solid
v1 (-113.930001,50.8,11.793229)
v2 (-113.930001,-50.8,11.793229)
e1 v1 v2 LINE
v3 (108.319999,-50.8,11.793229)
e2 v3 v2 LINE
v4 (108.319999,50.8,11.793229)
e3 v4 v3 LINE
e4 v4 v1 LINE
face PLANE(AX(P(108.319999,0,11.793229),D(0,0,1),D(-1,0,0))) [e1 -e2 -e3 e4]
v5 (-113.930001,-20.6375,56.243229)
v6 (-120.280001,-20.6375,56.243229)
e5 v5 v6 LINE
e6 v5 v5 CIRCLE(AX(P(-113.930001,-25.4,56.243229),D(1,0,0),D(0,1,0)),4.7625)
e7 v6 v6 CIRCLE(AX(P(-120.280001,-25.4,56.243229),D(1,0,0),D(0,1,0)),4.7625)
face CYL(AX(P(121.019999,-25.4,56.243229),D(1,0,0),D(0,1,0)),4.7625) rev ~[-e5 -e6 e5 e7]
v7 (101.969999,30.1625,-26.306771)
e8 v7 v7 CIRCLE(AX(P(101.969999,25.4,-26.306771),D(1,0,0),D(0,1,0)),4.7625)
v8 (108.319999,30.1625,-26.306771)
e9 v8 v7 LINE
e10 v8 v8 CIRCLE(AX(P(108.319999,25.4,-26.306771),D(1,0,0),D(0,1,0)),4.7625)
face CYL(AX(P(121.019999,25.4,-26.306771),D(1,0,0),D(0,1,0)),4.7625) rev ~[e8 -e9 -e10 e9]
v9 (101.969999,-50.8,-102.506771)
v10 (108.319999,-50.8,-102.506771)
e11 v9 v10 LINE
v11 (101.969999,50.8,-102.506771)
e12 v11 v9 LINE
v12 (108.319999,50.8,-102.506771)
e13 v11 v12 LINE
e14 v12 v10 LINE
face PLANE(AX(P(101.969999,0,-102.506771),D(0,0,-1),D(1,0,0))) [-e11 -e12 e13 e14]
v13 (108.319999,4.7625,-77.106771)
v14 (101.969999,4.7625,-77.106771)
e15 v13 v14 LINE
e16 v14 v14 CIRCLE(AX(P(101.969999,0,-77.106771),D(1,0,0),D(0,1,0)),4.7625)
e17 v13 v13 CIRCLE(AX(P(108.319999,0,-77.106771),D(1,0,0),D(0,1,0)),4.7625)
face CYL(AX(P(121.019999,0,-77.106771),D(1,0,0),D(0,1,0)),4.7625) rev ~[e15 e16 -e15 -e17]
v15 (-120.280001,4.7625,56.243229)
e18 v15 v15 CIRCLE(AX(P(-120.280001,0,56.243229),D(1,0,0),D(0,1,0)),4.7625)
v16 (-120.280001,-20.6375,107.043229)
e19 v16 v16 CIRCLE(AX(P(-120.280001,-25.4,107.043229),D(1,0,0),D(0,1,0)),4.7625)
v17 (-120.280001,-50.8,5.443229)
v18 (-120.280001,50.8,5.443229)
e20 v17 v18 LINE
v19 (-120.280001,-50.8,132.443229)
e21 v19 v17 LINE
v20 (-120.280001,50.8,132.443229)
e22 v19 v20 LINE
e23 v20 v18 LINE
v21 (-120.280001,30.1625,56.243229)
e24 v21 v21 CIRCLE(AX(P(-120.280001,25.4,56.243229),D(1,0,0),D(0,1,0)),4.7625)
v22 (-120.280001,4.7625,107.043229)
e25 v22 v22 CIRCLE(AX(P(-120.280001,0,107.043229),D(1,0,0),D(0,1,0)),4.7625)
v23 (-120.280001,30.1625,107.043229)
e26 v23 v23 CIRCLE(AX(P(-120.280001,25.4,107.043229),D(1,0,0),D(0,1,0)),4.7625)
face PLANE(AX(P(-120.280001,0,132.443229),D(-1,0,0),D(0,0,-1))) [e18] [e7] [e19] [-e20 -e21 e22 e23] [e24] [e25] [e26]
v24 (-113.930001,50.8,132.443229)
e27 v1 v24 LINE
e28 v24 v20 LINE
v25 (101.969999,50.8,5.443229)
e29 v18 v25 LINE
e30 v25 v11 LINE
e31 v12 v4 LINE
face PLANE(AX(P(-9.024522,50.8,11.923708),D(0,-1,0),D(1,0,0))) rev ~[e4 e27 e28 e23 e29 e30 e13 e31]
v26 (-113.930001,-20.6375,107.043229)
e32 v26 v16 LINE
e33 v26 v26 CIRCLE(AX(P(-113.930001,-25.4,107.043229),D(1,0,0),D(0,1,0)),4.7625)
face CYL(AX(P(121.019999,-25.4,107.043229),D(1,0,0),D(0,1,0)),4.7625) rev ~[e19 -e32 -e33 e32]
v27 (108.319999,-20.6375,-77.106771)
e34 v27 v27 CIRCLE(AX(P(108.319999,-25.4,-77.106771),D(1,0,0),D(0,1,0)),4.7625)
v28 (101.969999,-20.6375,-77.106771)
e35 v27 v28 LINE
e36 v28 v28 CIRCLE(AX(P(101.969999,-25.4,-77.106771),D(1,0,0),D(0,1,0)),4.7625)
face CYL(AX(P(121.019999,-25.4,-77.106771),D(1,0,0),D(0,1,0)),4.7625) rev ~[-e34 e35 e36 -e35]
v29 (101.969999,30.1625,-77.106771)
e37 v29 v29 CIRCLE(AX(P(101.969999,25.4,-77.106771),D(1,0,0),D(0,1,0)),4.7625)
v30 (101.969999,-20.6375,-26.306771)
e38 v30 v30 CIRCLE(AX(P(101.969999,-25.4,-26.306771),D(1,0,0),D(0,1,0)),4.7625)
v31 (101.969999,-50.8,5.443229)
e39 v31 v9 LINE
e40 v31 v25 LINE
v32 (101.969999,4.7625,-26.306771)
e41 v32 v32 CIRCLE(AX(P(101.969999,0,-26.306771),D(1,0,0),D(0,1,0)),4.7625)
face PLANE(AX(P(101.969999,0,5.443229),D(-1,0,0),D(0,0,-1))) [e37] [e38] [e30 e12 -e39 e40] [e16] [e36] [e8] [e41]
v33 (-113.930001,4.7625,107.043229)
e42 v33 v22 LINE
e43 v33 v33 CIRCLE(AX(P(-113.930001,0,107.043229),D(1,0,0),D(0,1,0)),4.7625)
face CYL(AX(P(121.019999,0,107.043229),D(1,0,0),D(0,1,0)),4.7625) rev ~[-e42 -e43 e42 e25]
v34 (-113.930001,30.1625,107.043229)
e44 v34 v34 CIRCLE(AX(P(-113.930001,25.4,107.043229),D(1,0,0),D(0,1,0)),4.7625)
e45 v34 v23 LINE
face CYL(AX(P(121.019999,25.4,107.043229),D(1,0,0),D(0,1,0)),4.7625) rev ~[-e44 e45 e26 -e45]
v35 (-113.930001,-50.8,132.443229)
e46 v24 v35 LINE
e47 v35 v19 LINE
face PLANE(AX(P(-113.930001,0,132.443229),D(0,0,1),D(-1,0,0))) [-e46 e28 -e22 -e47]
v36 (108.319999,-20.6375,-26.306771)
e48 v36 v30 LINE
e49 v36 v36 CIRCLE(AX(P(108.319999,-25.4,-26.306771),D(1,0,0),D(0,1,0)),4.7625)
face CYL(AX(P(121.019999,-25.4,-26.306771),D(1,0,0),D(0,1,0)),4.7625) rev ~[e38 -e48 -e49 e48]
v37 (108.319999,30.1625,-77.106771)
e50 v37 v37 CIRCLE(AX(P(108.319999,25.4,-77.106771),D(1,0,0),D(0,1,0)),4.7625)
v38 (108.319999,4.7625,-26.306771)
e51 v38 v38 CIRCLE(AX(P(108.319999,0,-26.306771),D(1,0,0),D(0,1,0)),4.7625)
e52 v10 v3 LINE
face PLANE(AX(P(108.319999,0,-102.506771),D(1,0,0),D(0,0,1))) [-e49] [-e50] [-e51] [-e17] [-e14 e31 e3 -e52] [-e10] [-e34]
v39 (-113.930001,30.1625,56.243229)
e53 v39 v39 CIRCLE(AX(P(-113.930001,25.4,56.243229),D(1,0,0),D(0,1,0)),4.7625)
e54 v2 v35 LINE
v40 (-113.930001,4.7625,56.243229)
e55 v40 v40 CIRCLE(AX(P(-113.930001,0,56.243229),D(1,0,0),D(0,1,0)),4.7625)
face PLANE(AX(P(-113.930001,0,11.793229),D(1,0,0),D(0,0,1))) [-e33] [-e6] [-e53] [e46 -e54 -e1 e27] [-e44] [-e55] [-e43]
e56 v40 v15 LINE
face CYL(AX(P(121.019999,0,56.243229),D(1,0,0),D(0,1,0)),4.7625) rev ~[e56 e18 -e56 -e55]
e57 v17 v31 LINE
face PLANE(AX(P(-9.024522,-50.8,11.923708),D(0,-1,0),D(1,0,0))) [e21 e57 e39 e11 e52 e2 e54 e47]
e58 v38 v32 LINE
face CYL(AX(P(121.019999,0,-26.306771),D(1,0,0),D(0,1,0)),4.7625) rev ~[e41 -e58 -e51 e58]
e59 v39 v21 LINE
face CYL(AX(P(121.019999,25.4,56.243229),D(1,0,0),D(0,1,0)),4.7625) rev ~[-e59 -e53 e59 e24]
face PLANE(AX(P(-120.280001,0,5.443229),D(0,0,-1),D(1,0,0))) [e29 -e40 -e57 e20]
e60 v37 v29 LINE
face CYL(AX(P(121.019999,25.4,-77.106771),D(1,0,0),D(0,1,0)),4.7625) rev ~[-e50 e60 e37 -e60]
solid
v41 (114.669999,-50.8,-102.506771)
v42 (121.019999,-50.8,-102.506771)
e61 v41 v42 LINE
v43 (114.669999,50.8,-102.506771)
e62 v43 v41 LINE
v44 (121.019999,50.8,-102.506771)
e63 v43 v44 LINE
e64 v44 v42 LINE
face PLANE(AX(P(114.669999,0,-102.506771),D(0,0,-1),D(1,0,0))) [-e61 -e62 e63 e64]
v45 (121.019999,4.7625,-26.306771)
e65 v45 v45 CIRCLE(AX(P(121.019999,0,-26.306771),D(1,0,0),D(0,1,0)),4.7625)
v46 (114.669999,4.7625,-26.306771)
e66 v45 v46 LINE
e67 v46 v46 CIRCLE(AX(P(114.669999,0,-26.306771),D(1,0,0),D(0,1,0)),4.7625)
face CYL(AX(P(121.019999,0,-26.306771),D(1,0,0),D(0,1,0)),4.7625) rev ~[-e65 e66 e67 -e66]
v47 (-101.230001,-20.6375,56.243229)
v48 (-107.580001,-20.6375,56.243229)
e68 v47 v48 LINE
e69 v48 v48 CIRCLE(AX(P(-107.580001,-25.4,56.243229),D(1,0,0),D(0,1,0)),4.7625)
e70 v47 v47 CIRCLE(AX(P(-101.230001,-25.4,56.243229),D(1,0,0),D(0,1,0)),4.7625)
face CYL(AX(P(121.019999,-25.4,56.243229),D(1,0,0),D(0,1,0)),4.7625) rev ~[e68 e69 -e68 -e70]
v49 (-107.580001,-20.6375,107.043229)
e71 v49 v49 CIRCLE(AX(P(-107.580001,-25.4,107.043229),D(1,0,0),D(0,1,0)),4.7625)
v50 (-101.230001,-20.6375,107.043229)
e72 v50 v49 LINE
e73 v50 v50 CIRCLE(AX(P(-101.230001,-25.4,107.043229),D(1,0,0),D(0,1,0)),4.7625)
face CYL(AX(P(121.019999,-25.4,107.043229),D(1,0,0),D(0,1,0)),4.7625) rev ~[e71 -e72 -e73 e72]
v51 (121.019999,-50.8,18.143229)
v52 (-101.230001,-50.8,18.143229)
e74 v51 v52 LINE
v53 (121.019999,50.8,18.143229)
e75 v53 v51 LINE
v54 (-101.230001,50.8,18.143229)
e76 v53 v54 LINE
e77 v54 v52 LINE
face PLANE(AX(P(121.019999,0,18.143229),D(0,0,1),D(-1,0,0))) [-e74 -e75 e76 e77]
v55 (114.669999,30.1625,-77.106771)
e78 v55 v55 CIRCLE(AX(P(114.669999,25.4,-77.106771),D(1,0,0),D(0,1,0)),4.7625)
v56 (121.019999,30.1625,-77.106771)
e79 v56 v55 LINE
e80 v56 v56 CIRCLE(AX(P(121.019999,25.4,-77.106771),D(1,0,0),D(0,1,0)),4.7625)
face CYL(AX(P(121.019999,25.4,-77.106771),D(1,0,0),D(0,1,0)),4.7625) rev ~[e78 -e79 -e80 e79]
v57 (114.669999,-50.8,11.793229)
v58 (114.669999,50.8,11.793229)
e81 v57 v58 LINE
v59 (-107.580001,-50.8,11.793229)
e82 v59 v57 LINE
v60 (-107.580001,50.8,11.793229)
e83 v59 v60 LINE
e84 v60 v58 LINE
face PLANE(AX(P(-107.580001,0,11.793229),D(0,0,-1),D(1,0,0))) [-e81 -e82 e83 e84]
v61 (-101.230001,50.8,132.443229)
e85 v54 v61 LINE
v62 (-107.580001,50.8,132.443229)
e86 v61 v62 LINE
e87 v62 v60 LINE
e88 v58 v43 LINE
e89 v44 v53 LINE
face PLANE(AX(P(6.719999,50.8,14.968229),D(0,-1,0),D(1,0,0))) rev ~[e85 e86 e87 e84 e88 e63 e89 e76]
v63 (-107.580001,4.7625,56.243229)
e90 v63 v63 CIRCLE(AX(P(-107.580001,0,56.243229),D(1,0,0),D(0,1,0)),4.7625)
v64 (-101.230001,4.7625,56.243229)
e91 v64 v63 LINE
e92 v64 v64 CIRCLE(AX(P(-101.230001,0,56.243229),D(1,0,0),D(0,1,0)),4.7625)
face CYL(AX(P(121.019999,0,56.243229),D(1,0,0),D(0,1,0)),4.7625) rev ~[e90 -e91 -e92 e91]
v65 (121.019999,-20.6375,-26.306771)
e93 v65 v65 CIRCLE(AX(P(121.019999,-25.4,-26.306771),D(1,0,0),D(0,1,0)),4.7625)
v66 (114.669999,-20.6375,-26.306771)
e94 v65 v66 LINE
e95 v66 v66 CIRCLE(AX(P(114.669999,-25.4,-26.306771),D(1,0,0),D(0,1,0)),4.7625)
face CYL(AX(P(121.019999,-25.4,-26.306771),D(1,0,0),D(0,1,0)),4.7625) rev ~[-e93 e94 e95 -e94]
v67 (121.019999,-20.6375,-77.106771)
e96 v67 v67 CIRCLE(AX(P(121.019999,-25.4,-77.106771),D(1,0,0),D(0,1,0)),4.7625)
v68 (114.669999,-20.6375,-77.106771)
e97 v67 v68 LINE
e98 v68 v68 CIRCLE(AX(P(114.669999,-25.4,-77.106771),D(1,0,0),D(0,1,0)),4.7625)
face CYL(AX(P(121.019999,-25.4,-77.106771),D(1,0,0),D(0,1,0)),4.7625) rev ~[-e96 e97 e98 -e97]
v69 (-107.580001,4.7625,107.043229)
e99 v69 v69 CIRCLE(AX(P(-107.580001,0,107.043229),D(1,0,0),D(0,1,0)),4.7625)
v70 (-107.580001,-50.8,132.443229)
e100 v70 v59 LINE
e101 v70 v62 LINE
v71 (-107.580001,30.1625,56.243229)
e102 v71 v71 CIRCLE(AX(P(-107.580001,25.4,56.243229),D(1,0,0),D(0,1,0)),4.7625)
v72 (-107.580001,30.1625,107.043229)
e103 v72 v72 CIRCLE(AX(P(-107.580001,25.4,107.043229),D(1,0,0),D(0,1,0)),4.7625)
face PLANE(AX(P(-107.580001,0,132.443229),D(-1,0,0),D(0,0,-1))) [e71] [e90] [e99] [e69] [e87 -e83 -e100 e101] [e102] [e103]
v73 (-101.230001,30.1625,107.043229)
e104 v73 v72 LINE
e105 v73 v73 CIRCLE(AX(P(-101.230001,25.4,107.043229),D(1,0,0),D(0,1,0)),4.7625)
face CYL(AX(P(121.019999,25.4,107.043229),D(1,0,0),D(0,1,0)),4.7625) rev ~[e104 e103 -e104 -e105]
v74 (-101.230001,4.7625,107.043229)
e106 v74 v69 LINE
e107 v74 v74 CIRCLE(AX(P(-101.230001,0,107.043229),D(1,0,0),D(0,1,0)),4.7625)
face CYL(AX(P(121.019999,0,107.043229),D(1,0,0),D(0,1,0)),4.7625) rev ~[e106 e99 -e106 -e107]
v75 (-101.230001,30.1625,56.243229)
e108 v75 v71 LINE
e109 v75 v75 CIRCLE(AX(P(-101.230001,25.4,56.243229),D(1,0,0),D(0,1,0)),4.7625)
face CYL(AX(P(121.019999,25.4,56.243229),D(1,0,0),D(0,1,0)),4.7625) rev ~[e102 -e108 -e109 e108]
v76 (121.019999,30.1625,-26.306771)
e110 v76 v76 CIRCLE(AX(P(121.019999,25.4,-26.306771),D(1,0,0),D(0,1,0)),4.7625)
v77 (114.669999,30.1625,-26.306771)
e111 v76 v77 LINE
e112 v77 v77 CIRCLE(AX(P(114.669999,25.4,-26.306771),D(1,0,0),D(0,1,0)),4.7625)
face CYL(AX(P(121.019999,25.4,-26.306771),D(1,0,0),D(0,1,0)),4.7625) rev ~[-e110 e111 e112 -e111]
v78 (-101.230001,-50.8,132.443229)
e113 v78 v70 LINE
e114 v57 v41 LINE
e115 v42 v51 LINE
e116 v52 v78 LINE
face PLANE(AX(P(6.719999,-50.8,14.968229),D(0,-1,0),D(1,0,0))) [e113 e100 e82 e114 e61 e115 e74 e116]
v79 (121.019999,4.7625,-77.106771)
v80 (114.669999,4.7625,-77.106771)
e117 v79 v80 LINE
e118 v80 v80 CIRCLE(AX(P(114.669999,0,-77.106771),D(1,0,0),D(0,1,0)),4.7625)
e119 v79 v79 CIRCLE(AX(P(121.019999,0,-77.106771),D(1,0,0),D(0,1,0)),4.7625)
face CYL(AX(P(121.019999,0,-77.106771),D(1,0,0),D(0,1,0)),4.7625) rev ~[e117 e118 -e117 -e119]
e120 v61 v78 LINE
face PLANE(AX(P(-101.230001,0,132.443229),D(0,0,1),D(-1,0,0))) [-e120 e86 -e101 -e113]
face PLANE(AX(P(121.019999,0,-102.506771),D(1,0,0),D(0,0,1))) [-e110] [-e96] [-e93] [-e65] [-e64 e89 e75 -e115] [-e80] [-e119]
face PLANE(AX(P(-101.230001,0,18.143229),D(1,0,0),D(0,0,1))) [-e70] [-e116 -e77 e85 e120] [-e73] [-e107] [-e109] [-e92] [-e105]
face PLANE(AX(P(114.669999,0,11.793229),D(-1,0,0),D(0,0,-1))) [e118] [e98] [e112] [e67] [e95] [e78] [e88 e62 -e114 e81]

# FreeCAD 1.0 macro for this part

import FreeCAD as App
import Part
import Sketcher
from FreeCAD import Vector
Q = App.Units.Quantity


def add_polygon(sketch, points):
    """Adds a closed chain of lines whose ends are joined by coincident constraints."""
    first, n = sketch.GeometryCount, len(points)
    for a, b in zip(points, points[1:] + points[:1]):
        sketch.addGeometry(Part.LineSegment(App.Vector(*a, 0), App.Vector(*b, 0)), False)
    for i in range(n):
        sketch.addConstraint(Sketcher.Constraint("Coincident", first + i, 2, first + (i + 1) % n, 1))

doc = App.newDocument("Part")
body = doc.addObject("PartDesign::Body", "Body")

sketch1 = body.newObject("Sketcher::SketchObject", "Sketch")
sketch1.AttachmentSupport = (doc.getObject("XZ_Plane"), [""])
sketch1.MapMode = "FlatFace"
add_polygon(sketch1, [(102, 5), (102, -103), (108, -103), (108, 12), (-114, 12), (-114, 132), (-120, 132), (-120, 5)])
sketch1.addConstraint([
    Sketcher.Constraint("Vertical", 0),
    Sketcher.Constraint("Horizontal", 1),
    Sketcher.Constraint("Vertical", 2),
    Sketcher.Constraint("Horizontal", 3),
    Sketcher.Constraint("Vertical", 4),
    Sketcher.Constraint("Horizontal", 5),
    Sketcher.Constraint("Vertical", 6),
    Sketcher.Constraint("Horizontal", 7),
    Sketcher.Constraint("Equal", 1, 5),
    Sketcher.Constraint("DistanceY", 6, 2, 6, 1, Q("5 in")),
    Sketcher.Constraint("DistanceY", 2, 1, 2, 2, Q("4.5 in")),
    Sketcher.Constraint("DistanceX", 5, 2, 2, 2, Q("9 in")),
    Sketcher.Constraint("DistanceX", 1, 1, 1, 2, Q("0.25 in")),
    Sketcher.Constraint("DistanceY", 0, 2, 0, 1, Q("4.25 in")),
    Sketcher.Constraint("DistanceX", -1, 1, 0, 2, 101.969999),
    Sketcher.Constraint("DistanceY", 0, 2, -1, 1, 102.506771),
])
pad1 = body.newObject("PartDesign::Pad", "Pad")
pad1.Profile = sketch1
pad1.Length = Q("4 in")
pad1.Midplane = True
body2 = doc.addObject("PartDesign::Body", "Body001")

sketch2 = body2.newObject("Sketcher::SketchObject", "Sketch001")
sketch2.AttachmentSupport = (doc.getObject("XZ_Plane001"), [""])
sketch2.MapMode = "FlatFace"
add_polygon(sketch2, [(115, 12), (115, -103), (121, -103), (121, 18), (-101, 18), (-101, 132), (-108, 132), (-108, 12)])
sketch2.addConstraint([
    Sketcher.Constraint("Vertical", 0),
    Sketcher.Constraint("Horizontal", 1),
    Sketcher.Constraint("Vertical", 2),
    Sketcher.Constraint("Horizontal", 3),
    Sketcher.Constraint("Vertical", 4),
    Sketcher.Constraint("Horizontal", 5),
    Sketcher.Constraint("Vertical", 6),
    Sketcher.Constraint("Horizontal", 7),
    Sketcher.Constraint("Equal", 1, 5),
    Sketcher.Constraint("Equal", 0, 4),
    Sketcher.Constraint("DistanceY", 0, 2, 0, 1, Q("4.5 in")),
    Sketcher.Constraint("DistanceX", 5, 2, 2, 2, Q("9 in")),
    Sketcher.Constraint("DistanceX", 1, 1, 1, 2, Q("0.25 in")),
    Sketcher.Constraint("DistanceY", 2, 1, 2, 2, Q("4.75 in")),
    Sketcher.Constraint("DistanceX", -1, 1, 0, 2, 114.669999),
    Sketcher.Constraint("DistanceY", 0, 2, -1, 1, 102.506771),
])
pad2 = body2.newObject("PartDesign::Pad", "Pad001")
pad2.Profile = sketch2
pad2.Length = Q("4 in")
pad2.Midplane = True
body3 = doc.addObject("PartDesign::Body", "Body002")
body3.AllowCompound = True

sketch3 = body3.newObject("Sketcher::SketchObject", "Sketch002")
sketch3.AttachmentSupport = (doc.getObject("YZ_Plane002"), [""])
sketch3.MapMode = "FlatFace"
sketch3.AttachmentOffset = App.Placement(Vector(0, 0, 121.019999), App.Rotation())
sketch3.addGeometry([
    Part.Circle(Vector(-25.4, -77.1, 0), Vector(0, 0, 1), 4.8),
    Part.Circle(Vector(-25.4, 107, 0), Vector(0, 0, 1), 4.8),
    Part.Circle(Vector(-25.4, 56.2, 0), Vector(0, 0, 1), 4.8),
    Part.Circle(Vector(0, 107, 0), Vector(0, 0, 1), 4.8),
    Part.Circle(Vector(0, 56.2, 0), Vector(0, 0, 1), 4.8),
    Part.Circle(Vector(25.4, 107, 0), Vector(0, 0, 1), 4.8),
    Part.Circle(Vector(25.4, 56.2, 0), Vector(0, 0, 1), 4.8),
    Part.Circle(Vector(-25.4, -26.3, 0), Vector(0, 0, 1), 4.8),
    Part.Circle(Vector(0, -77.1, 0), Vector(0, 0, 1), 4.8),
    Part.Circle(Vector(0, -26.3, 0), Vector(0, 0, 1), 4.8),
    Part.Circle(Vector(25.4, -77.1, 0), Vector(0, 0, 1), 4.8),
    Part.Circle(Vector(25.4, -26.3, 0), Vector(0, 0, 1), 4.8),
], False)
sketch3.addConstraint([
    Sketcher.Constraint("Equal", 0, 1),
    Sketcher.Constraint("Equal", 1, 2),
    Sketcher.Constraint("Equal", 2, 3),
    Sketcher.Constraint("Equal", 3, 4),
    Sketcher.Constraint("Equal", 4, 5),
    Sketcher.Constraint("Equal", 5, 6),
    Sketcher.Constraint("Equal", 6, 7),
    Sketcher.Constraint("Equal", 7, 8),
    Sketcher.Constraint("Equal", 8, 9),
    Sketcher.Constraint("Equal", 9, 10),
    Sketcher.Constraint("Equal", 10, 11),
    Sketcher.Constraint("Symmetric", 1, 3, 5, 3, -2),
    Sketcher.Constraint("Symmetric", 2, 3, 6, 3, -2),
    Sketcher.Constraint("Symmetric", 0, 3, 10, 3, -2),
    Sketcher.Constraint("Symmetric", 7, 3, 11, 3, -2),
    Sketcher.Constraint("PointOnObject", 3, 3, -2),
    Sketcher.Constraint("PointOnObject", 4, 3, -2),
    Sketcher.Constraint("PointOnObject", 8, 3, -2),
    Sketcher.Constraint("PointOnObject", 9, 3, -2),
    Sketcher.Constraint("Horizontal", 1, 3, 3, 3),
    Sketcher.Constraint("Horizontal", 2, 3, 4, 3),
    Sketcher.Constraint("Horizontal", 0, 3, 8, 3),
    Sketcher.Constraint("Horizontal", 7, 3, 9, 3),
    Sketcher.Constraint("Vertical", 0, 3, 1, 3),
    Sketcher.Constraint("Vertical", 1, 3, 2, 3),
    Sketcher.Constraint("Vertical", 2, 3, 7, 3),
    Sketcher.Constraint("Diameter", 0, Q("0.375 in")),
    Sketcher.Constraint("DistanceX", 0, 3, -1, 1, Q("1 in")),
    Sketcher.Constraint("DistanceY", 2, 3, 1, 3, Q("2 in")),
    Sketcher.Constraint("DistanceY", 0, 3, 7, 3, Q("2 in")),
    Sketcher.Constraint("DistanceY", 0, 3, 1, 3, Q("7.25 in")),
    Sketcher.Constraint("DistanceY", 0, 3, -1, 1, 77.106771),
])
pad3 = body3.newObject("PartDesign::Pad", "Pad002")
pad3.Profile = sketch3
pad3.Length = 241.301
pad3.Reversed = True
doc.recompute()

body4 = doc.addObject("PartDesign::Body", "Body003")
body4.BaseFeature = body3
boolean = body.newObject("PartDesign::Boolean", "Boolean")
boolean.Type = "Cut"
boolean.addObjects([body4])
doc.recompute()

boolean2 = body2.newObject("PartDesign::Boolean", "Boolean001")
boolean2.Type = "Cut"
boolean2.addObjects([body3])

doc.recompute()
